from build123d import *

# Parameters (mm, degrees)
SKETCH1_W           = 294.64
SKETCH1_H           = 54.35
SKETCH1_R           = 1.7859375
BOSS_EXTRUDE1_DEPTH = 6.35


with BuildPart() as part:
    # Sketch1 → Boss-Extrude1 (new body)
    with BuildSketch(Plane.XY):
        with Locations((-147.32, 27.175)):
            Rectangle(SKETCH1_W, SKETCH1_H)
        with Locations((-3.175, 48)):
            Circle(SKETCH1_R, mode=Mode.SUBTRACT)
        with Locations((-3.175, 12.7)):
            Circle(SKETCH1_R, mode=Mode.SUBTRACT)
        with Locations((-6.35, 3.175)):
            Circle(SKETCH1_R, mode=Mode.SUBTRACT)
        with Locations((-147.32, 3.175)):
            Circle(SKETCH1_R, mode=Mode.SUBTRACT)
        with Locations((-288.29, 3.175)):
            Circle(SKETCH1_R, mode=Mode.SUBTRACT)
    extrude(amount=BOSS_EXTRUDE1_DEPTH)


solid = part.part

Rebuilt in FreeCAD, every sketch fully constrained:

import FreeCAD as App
import Part
import Sketcher

V = App.Vector
Q = App.Units.Quantity


def add_polygon(sketch, points):
    """Adds a closed chain of lines whose ends are joined by coincident constraints."""
    first, n = sketch.GeometryCount, len(points)
    for a, b in zip(points, points[1:] + points[:1]):
        sketch.addGeometry(Part.LineSegment(App.Vector(*a, 0), App.Vector(*b, 0)), False)
    for i in range(n):
        sketch.addConstraint(Sketcher.Constraint("Coincident", first + i, 2, first + (i + 1) % n, 1))

doc = App.newDocument("Part")
body = doc.addObject("PartDesign::Body", "Body")

sketch1 = doc.addObject("Sketcher::SketchObject", "Sketch")
body.addObject(sketch1)
sketch1.AttachmentSupport = (doc.XY_Plane, [""])
sketch1.MapMode = "FlatFace"
add_polygon(sketch1, [(-294.6, 54.4), (-294.6, 0), (0, 0), (0, 54.4)])
sketch1.addGeometry(Part.Circle(V(-288.3, 3.2, 0), V(0, 0, 1), 1.8), False)
sketch1.addGeometry(Part.Circle(V(-147.3, 3.2, 0), V(0, 0, 1), 1.8), False)
sketch1.addGeometry(Part.Circle(V(-6.3, 3.2, 0), V(0, 0, 1), 1.8), False)
sketch1.addGeometry(Part.Circle(V(-3.2, 12.7, 0), V(0, 0, 1), 1.8), False)
sketch1.addGeometry(Part.Circle(V(-3.2, 48, 0), V(0, 0, 1), 1.8), False)
sketch1.addConstraint(Sketcher.Constraint("Vertical", 0))
sketch1.addConstraint(Sketcher.Constraint("Horizontal", 1))
sketch1.addConstraint(Sketcher.Constraint("Vertical", 2))
sketch1.addConstraint(Sketcher.Constraint("Horizontal", 3))
sketch1.addConstraint(Sketcher.Constraint("Coincident", 1, 2, -1, 1))
sketch1.addConstraint(Sketcher.Constraint("Equal", 4, 5))
sketch1.addConstraint(Sketcher.Constraint("Equal", 5, 6))
sketch1.addConstraint(Sketcher.Constraint("Equal", 6, 7))
sketch1.addConstraint(Sketcher.Constraint("Equal", 7, 8))
sketch1.addConstraint(Sketcher.Constraint("Horizontal", 4, 3, 5, 3))
sketch1.addConstraint(Sketcher.Constraint("Horizontal", 5, 3, 6, 3))
sketch1.addConstraint(Sketcher.Constraint("Vertical", 7, 3, 8, 3))
sketch1.addConstraint(Sketcher.Constraint("Diameter", 4, Q("0.140625 in")))
sketch1.addConstraint(Sketcher.Constraint("DistanceX", 1, 1, 1, 2, Q("11.6 in")))
sketch1.addConstraint(Sketcher.Constraint("DistanceX", 5, 3, -1, 1, Q("5.8 in")))
sketch1.addConstraint(Sketcher.Constraint("DistanceY", -1, 1, 7, 3, Q("0.5 in")))
sketch1.addConstraint(Sketcher.Constraint("DistanceX", 4, 3, 6, 3, Q("11.1 in")))
sketch1.addConstraint(Sketcher.Constraint("DistanceX", 4, 3, -1, 1, Q("11.35 in")))
sketch1.addConstraint(Sketcher.Constraint("DistanceY", 8, 3, 2, 2, Q("0.25 in")))
sketch1.addConstraint(Sketcher.Constraint("DistanceY", -1, 1, 4, 3, Q("0.125 in")))
sketch1.addConstraint(Sketcher.Constraint("DistanceX", 7, 3, -1, 1, Q("0.125 in")))
sketch1.addConstraint(Sketcher.Constraint("DistanceY", 0, 2, 0, 1, Q("54.35 mm")))
pad1 = doc.addObject("PartDesign::Pad", "Pad")
body.addObject(pad1)
pad1.Profile = sketch1
pad1.Length = Q("0.25 in")

doc.recompute()
